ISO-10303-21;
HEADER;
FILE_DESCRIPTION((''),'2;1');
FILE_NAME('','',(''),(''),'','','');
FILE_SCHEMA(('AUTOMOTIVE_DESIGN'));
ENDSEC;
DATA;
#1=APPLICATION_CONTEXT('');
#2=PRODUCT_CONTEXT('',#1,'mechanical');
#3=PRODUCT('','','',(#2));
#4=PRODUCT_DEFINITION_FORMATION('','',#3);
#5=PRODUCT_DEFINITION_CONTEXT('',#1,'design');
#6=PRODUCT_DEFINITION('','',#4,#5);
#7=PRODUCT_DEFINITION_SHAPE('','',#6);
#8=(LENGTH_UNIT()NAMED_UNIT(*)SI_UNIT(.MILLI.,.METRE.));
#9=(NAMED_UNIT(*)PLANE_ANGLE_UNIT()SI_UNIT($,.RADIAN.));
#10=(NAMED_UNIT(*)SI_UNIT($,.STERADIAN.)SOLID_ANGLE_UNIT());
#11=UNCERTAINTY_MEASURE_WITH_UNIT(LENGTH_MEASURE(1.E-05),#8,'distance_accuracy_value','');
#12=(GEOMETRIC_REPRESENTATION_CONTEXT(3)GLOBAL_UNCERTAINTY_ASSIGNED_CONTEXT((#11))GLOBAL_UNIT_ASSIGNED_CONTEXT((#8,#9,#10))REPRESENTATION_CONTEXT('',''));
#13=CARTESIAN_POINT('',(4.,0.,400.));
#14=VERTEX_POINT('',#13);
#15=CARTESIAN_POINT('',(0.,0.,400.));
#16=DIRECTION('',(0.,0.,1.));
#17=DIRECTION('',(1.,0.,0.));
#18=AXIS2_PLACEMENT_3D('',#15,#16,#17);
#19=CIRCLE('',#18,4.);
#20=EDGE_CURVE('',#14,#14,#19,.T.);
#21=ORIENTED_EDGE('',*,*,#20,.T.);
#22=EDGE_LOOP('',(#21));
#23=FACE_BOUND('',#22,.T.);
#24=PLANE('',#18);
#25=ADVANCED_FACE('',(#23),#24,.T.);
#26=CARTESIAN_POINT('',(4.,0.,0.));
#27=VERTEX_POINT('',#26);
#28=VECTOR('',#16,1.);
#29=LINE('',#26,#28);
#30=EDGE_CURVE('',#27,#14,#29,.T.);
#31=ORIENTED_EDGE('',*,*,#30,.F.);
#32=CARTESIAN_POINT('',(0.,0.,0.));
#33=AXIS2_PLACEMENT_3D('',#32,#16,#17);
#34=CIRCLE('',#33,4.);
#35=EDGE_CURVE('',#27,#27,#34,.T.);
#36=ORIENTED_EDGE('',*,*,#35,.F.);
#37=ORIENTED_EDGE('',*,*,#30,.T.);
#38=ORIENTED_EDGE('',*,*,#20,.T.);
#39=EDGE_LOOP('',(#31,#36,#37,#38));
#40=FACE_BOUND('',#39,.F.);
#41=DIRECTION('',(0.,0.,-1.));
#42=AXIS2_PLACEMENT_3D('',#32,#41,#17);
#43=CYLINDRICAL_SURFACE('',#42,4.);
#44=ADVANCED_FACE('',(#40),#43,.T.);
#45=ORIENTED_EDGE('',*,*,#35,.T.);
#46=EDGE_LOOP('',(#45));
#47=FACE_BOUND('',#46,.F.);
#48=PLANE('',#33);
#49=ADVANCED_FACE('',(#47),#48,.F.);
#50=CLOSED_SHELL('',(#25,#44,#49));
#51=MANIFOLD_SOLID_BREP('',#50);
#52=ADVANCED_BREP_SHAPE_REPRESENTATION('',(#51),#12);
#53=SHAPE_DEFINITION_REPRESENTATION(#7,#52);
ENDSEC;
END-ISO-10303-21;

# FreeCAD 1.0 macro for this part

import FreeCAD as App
import Part
import Sketcher
Q = App.Units.Quantity

doc = App.newDocument("Part")
body = doc.addObject("PartDesign::Body", "Body")

sketch1 = doc.addObject("Sketcher::SketchObject", "Sketch")
body.addObject(sketch1)
sketch1.AttachmentSupport = (doc.XY_Plane, [""])
sketch1.MapMode = "FlatFace"
sketch1.addGeometry(Part.Circle(App.Vector(0, 0, 0), App.Vector(0, 0, 1), 4), False)
sketch1.addConstraint(Sketcher.Constraint("Coincident", 0, 3, -1, 1))
sketch1.addConstraint(Sketcher.Constraint("Diameter", 0, Q("8 mm")))
pad1 = doc.addObject("PartDesign::Pad", "Pad")
body.addObject(pad1)
pad1.Profile = sketch1
pad1.Length = 400

doc.recompute()
